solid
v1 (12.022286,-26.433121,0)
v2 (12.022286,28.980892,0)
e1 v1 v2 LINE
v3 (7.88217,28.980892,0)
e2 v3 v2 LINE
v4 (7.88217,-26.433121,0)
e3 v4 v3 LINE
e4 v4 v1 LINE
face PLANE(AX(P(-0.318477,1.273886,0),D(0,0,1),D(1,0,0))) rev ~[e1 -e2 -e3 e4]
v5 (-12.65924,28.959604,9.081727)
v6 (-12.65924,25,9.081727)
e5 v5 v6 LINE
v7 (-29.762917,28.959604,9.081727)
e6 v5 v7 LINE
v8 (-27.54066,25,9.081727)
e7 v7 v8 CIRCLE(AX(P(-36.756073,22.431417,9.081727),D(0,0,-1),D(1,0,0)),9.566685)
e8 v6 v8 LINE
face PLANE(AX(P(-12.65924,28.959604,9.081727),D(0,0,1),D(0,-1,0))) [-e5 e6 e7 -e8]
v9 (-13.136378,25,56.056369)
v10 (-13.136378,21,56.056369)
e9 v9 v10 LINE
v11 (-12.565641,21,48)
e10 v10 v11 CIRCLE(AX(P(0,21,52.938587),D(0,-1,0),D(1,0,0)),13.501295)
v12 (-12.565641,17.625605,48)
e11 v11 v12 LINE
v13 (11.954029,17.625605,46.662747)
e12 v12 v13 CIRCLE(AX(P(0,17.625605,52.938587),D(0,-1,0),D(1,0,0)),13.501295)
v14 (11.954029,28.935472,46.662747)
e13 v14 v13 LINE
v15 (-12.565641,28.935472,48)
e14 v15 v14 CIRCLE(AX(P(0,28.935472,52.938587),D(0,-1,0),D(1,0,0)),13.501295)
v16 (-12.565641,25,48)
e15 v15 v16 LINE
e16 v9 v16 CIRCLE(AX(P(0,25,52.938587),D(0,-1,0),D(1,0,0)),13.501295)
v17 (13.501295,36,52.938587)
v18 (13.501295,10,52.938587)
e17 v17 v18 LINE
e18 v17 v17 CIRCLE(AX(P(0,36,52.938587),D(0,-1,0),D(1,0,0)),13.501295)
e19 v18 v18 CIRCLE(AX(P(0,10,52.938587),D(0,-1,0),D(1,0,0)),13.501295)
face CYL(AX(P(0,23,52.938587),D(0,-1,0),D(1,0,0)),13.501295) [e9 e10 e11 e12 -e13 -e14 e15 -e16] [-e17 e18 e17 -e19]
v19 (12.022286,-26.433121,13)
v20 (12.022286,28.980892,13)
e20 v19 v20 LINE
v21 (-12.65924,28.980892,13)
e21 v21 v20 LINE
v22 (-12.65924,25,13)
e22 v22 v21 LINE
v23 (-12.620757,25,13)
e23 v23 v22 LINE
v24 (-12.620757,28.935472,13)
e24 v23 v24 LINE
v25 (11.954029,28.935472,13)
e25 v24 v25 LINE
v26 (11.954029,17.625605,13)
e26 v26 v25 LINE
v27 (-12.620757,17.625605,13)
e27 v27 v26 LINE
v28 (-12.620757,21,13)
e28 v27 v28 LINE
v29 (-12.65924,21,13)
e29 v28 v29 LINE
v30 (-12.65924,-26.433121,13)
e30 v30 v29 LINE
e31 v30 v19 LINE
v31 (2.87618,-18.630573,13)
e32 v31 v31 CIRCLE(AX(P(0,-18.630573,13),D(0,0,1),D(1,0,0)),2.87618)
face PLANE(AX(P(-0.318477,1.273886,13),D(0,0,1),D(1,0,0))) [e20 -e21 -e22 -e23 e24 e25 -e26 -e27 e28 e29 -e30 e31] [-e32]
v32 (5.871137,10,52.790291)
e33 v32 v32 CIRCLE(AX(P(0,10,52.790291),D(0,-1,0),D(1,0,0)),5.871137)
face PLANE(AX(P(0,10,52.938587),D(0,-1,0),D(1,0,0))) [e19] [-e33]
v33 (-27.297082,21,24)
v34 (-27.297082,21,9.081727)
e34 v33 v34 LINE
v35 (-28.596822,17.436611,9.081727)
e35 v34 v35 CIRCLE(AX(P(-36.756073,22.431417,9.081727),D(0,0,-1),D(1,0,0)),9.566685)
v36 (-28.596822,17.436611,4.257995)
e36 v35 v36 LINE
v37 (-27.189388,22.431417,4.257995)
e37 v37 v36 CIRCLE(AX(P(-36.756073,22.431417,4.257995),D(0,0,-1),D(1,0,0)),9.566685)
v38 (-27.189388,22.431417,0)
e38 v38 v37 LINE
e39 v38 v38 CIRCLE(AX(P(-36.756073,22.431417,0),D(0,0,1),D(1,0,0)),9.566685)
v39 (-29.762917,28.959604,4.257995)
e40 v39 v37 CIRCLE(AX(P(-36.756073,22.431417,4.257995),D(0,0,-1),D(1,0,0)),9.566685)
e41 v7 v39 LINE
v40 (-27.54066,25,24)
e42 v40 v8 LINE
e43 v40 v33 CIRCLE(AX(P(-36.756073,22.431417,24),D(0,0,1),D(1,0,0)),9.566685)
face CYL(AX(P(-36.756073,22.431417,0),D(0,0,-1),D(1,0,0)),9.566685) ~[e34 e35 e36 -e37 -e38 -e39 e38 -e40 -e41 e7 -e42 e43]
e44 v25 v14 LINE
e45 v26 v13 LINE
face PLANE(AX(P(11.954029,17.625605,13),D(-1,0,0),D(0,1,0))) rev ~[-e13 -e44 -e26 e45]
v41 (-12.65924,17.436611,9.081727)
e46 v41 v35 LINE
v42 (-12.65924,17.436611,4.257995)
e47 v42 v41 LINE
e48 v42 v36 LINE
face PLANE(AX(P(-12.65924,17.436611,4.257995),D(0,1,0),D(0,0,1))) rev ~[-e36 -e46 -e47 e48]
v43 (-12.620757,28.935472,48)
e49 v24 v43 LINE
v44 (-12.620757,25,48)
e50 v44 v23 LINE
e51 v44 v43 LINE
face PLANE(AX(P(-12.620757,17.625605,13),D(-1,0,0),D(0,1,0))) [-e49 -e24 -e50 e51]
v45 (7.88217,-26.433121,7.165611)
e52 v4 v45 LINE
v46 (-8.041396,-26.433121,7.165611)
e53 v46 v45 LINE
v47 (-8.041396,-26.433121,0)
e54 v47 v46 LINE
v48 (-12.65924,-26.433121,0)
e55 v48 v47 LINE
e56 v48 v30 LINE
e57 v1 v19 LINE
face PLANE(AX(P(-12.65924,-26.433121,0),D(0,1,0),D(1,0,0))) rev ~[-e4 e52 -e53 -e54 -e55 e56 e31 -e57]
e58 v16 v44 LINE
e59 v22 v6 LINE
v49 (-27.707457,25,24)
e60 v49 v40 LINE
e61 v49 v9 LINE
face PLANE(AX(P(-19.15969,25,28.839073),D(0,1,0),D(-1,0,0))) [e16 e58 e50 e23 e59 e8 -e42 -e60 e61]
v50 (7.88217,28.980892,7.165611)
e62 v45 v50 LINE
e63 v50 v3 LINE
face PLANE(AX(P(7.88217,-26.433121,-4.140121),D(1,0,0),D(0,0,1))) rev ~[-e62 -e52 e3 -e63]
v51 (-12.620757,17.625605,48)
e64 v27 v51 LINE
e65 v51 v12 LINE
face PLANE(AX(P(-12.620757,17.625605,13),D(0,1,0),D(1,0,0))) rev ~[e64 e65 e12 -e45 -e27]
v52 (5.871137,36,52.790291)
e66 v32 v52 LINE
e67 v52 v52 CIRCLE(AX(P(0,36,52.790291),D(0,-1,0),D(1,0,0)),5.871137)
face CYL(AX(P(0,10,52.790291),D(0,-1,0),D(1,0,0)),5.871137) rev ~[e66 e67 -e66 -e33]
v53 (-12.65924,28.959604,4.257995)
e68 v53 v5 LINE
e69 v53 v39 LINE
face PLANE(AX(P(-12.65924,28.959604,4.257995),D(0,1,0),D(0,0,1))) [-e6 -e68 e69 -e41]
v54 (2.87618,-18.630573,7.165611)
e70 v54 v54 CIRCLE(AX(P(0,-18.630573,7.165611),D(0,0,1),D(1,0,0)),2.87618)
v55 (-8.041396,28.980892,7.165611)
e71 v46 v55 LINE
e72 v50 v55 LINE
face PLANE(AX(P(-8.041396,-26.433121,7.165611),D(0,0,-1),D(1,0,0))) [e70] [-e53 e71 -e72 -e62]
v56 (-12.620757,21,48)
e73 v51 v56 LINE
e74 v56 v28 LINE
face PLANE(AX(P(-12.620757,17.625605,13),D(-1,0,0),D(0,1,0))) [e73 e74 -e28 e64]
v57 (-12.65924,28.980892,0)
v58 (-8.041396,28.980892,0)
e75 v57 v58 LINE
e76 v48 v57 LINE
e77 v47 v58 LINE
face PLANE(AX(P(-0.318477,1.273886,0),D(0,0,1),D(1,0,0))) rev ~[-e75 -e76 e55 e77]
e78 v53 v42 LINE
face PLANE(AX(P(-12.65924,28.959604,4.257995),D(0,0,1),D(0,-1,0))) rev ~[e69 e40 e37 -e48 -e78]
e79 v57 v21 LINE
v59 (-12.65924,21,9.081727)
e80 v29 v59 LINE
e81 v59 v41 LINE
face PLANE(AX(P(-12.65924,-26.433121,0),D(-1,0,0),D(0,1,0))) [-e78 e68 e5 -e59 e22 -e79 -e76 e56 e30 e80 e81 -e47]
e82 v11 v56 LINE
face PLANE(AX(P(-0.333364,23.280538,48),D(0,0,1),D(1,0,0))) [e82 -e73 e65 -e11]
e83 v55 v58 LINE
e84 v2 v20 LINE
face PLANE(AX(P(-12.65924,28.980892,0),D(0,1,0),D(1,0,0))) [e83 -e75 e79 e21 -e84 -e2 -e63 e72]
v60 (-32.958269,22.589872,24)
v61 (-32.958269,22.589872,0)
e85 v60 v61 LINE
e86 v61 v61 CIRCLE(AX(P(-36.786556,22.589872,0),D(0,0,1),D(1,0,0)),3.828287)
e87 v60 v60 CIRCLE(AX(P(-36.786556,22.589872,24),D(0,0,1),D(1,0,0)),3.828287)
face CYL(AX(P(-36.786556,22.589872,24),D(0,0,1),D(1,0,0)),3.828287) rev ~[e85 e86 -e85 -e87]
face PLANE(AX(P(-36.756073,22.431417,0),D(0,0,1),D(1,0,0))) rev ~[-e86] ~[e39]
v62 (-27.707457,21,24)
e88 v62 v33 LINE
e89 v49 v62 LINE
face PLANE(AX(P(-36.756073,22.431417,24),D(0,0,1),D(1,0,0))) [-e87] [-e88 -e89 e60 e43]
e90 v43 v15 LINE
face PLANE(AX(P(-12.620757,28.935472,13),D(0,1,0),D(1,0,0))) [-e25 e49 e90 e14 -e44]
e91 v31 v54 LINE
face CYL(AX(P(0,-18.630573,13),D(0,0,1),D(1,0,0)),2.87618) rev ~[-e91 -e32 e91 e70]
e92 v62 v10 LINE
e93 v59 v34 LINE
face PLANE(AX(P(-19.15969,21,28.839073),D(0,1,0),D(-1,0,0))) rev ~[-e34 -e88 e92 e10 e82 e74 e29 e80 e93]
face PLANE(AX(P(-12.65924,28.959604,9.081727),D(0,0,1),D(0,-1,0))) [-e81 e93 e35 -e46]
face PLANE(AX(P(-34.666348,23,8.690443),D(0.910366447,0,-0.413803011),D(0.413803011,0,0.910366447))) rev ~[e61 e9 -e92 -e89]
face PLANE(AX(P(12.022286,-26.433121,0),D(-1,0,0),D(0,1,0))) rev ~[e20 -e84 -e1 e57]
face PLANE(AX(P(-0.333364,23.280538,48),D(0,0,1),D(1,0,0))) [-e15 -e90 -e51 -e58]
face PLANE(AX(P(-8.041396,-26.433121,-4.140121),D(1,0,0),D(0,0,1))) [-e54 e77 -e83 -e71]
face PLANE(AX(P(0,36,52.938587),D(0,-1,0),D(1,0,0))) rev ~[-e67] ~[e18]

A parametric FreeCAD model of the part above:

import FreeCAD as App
import Part
import Sketcher
from FreeCAD import Vector
Q = App.Units.Quantity

doc = App.newDocument("Part")
body = doc.addObject("PartDesign::Body", "Body")

# Sketch on XY plane
sketch1 = body.newObject("Sketcher::SketchObject", "Sketch")
sketch1.AttachmentSupport = (doc.getObject("XY_Plane"), [""])
sketch1.MapMode = "FlatFace"
sketch1.addGeometry([
    Part.LineSegment(Vector(-13, 29, 0), Vector(-13, -26, 0)),
    Part.LineSegment(Vector(-13, -26, 0), Vector(12, -26, 0)),
    Part.LineSegment(Vector(12, -26, 0), Vector(12, 29, 0)),
    Part.LineSegment(Vector(12, 29, 0), Vector(-13, 29, 0)),
], False)
sketch1.addConstraint([
    Sketcher.Constraint("Coincident", 0, 2, 1, 1),
    Sketcher.Constraint("Coincident", 1, 2, 2, 1),
    Sketcher.Constraint("Coincident", 2, 2, 3, 1),
    Sketcher.Constraint("Coincident", 3, 2, 0, 1),
    Sketcher.Constraint("Vertical", 0),
    Sketcher.Constraint("Horizontal", 1),
    Sketcher.Constraint("Vertical", 2),
    Sketcher.Constraint("Horizontal", 3),
    Sketcher.Constraint("DistanceX", 1, 1, 1, 2, Q("24.681526 mm")),
    Sketcher.Constraint("DistanceY", 0, 2, 0, 1, Q("55.414013 mm")),
    Sketcher.Constraint("DistanceX", 0, 2, -1, 1, Q("12.65924 mm")),
    Sketcher.Constraint("DistanceY", 0, 2, -1, 1, Q("26.433121 mm")),
])
pad1 = body.newObject("PartDesign::Pad", "Pad")
pad1.Profile = sketch1
pad1.Length = 13

# Sketch on XZ plane
sketch2 = body.newObject("Sketcher::SketchObject", "Sketch001")
sketch2.AttachmentSupport = (doc.getObject("XZ_Plane"), [""])
sketch2.MapMode = "FlatFace"
sketch2.AttachmentOffset = App.Placement(Vector(0, 0, 26.433121), App.Rotation())
sketch2.addGeometry([
    Part.LineSegment(Vector(-8, 7, 0), Vector(-8, -4, 0)),
    Part.LineSegment(Vector(-8, -4, 0), Vector(8, -4, 0)),
    Part.LineSegment(Vector(8, -4, 0), Vector(8, 7, 0)),
    Part.LineSegment(Vector(8, 7, 0), Vector(-8, 7, 0)),
], False)
sketch2.addConstraint([
    Sketcher.Constraint("Coincident", 0, 2, 1, 1),
    Sketcher.Constraint("Coincident", 1, 2, 2, 1),
    Sketcher.Constraint("Coincident", 2, 2, 3, 1),
    Sketcher.Constraint("Coincident", 3, 2, 0, 1),
    Sketcher.Constraint("Vertical", 0),
    Sketcher.Constraint("Horizontal", 1),
    Sketcher.Constraint("Vertical", 2),
    Sketcher.Constraint("Horizontal", 3),
    Sketcher.Constraint("DistanceY", 0, 2, 0, 1, Q("11.305732 mm")),
    Sketcher.Constraint("DistanceX", 1, 1, 1, 2, Q("15.923566 mm")),
    Sketcher.Constraint("DistanceY", 0, 2, -1, 1, Q("4.140121 mm")),
    Sketcher.Constraint("DistanceX", -1, 1, 1, 2, Q("7.88217 mm")),
])
pocket1 = body.newObject("PartDesign::Pocket", "Pocket")
pocket1.Profile = sketch2
pocket1.Type = "ThroughAll"

# Sketch on XY plane
sketch3 = body.newObject("Sketcher::SketchObject", "Sketch002")
sketch3.AttachmentSupport = (doc.getObject("XY_Plane"), [""])
sketch3.MapMode = "FlatFace"
sketch3.AttachmentOffset = App.Placement(Vector(0, 0, 13), App.Rotation())
sketch3.addGeometry(Part.Circle(Vector(0, -18.6, 0), Vector(0, 0, 1), 2.9), False)
sketch3.addConstraint([
    Sketcher.Constraint("PointOnObject", 0, 3, -2),
    Sketcher.Constraint("Diameter", 0, Q("5.75236 mm")),
    Sketcher.Constraint("DistanceY", 0, 3, -1, 1, Q("18.630573 mm")),
])
pocket2 = body.newObject("PartDesign::Pocket", "Pocket001")
pocket2.Profile = sketch3
pocket2.Type = "ThroughAll"

# Sketch on XY plane
sketch4 = body.newObject("Sketcher::SketchObject", "Sketch003")
sketch4.AttachmentSupport = (doc.getObject("XY_Plane"), [""])
sketch4.MapMode = "FlatFace"
sketch4.AttachmentOffset = App.Placement(Vector(0, 0, 13), App.Rotation())
sketch4.addGeometry([
    Part.LineSegment(Vector(-13, 29, 0), Vector(-13, 18, 0)),
    Part.LineSegment(Vector(-13, 18, 0), Vector(12, 18, 0)),
    Part.LineSegment(Vector(12, 18, 0), Vector(12, 29, 0)),
    Part.LineSegment(Vector(12, 29, 0), Vector(-13, 29, 0)),
], False)
sketch4.addConstraint([
    Sketcher.Constraint("Coincident", 0, 2, 1, 1),
    Sketcher.Constraint("Coincident", 1, 2, 2, 1),
    Sketcher.Constraint("Coincident", 2, 2, 3, 1),
    Sketcher.Constraint("Coincident", 3, 2, 0, 1),
    Sketcher.Constraint("Vertical", 0),
    Sketcher.Constraint("Horizontal", 1),
    Sketcher.Constraint("Vertical", 2),
    Sketcher.Constraint("Horizontal", 3),
    Sketcher.Constraint("DistanceX", 1, 1, 1, 2, Q("24.574786 mm")),
    Sketcher.Constraint("DistanceY", 0, 2, 0, 1, Q("11.309867 mm")),
    Sketcher.Constraint("DistanceX", -1, 1, 1, 2, Q("11.954029 mm")),
    Sketcher.Constraint("DistanceY", -1, 1, 0, 2, Q("17.625605 mm")),
])
pad2 = body.newObject("PartDesign::Pad", "Pad001")
pad2.Profile = sketch4
pad2.Length = 35

# Sketch on YZ plane
sketch5 = body.newObject("Sketcher::SketchObject", "Sketch004")
sketch5.AttachmentSupport = (doc.getObject("YZ_Plane"), [""])
sketch5.MapMode = "FlatFace"
sketch5.AttachmentOffset = App.Placement(Vector(0, 0, -12.65924), App.Rotation())
sketch5.addGeometry([
    Part.LineSegment(Vector(29, 9.1, 0), Vector(29, 4.3, 0)),
    Part.LineSegment(Vector(29, 4.3, 0), Vector(17.4, 4.3, 0)),
    Part.LineSegment(Vector(17.4, 4.3, 0), Vector(17.4, 9.1, 0)),
    Part.LineSegment(Vector(17.4, 9.1, 0), Vector(29, 9.1, 0)),
], False)
sketch5.addConstraint([
    Sketcher.Constraint("Coincident", 0, 2, 1, 1),
    Sketcher.Constraint("Coincident", 1, 2, 2, 1),
    Sketcher.Constraint("Coincident", 2, 2, 3, 1),
    Sketcher.Constraint("Coincident", 3, 2, 0, 1),
    Sketcher.Constraint("Vertical", 0),
    Sketcher.Constraint("Horizontal", 1),
    Sketcher.Constraint("Vertical", 2),
    Sketcher.Constraint("Horizontal", 3),
    Sketcher.Constraint("DistanceX", 1, 2, 1, 1, Q("11.522993 mm")),
    Sketcher.Constraint("DistanceY", 0, 2, 0, 1, Q("4.823732 mm")),
    Sketcher.Constraint("DistanceX", -1, 1, 1, 2, Q("17.436611 mm")),
    Sketcher.Constraint("DistanceY", -1, 1, 0, 2, Q("4.257995 mm")),
])
pad3 = body.newObject("PartDesign::Pad", "Pad002")
pad3.Profile = sketch5
pad3.Length = 22
pad3.Reversed = True

# Sketch on XZ plane
sketch6 = body.newObject("Sketcher::SketchObject", "Sketch005")
sketch6.AttachmentSupport = (doc.getObject("XZ_Plane"), [""])
sketch6.MapMode = "FlatFace"
sketch6.AttachmentOffset = App.Placement(Vector(0, 0, -23), App.Rotation())
sketch6.addGeometry([
    Part.LineSegment(Vector(-12, 58, 0), Vector(-35, 9, 0)),
    Part.LineSegment(Vector(-35, 9, 0), Vector(-12, 9, 0)),
    Part.LineSegment(Vector(-12, 9, 0), Vector(-12, 58, 0)),
], False)
sketch6.addConstraint([
    Sketcher.Constraint("Coincident", 0, 2, 1, 1),
    Sketcher.Constraint("Coincident", 1, 2, 2, 1),
    Sketcher.Constraint("Coincident", 2, 2, 0, 1),
    Sketcher.Constraint("Horizontal", 1),
    Sketcher.Constraint("Vertical", 2),
    Sketcher.Constraint("Distance", 0, Q("53.853059 mm")),
    Sketcher.Constraint("DistanceX", 1, 1, 1, 2, Q("22.284558 mm")),
    Sketcher.Constraint("DistanceX", 1, 2, -1, 1, Q("12.38179 mm")),
    Sketcher.Constraint("DistanceY", -1, 1, 2, 2, Q("57.716461 mm")),
])
pad4 = body.newObject("PartDesign::Pad", "Pad003")
pad4.Profile = sketch6
pad4.Length = 4
pad4.Midplane = True

# Sketch on XY plane
sketch7 = body.newObject("Sketcher::SketchObject", "Sketch006")
sketch7.AttachmentSupport = (doc.getObject("XY_Plane"), [""])
sketch7.MapMode = "FlatFace"
sketch7.addGeometry(Part.Circle(Vector(-37, 22, 0), Vector(0, 0, 1), 10), False)
sketch7.addConstraint([
    Sketcher.Constraint("Diameter", 0, Q("19.13337 mm")),
    Sketcher.Constraint("DistanceX", 0, 3, -1, 1, Q("36.756073 mm")),
    Sketcher.Constraint("DistanceY", -1, 1, 0, 3, Q("22.431417 mm")),
])
pad5 = body.newObject("PartDesign::Pad", "Pad004")
pad5.Profile = sketch7
pad5.Length = 24

# Sketch on XY plane
sketch8 = body.newObject("Sketcher::SketchObject", "Sketch007")
sketch8.AttachmentSupport = (doc.getObject("XY_Plane"), [""])
sketch8.MapMode = "FlatFace"
sketch8.AttachmentOffset = App.Placement(Vector(0, 0, 24), App.Rotation())
sketch8.addGeometry(Part.Circle(Vector(-36.8, 22.6, 0), Vector(0, 0, 1), 3.8), False)
sketch8.addConstraint([
    Sketcher.Constraint("Diameter", 0, Q("7.656574 mm")),
    Sketcher.Constraint("DistanceY", -1, 1, 0, 3, Q("22.589872 mm")),
    Sketcher.Constraint("DistanceX", 0, 3, -1, 1, Q("36.786556 mm")),
])
pocket3 = body.newObject("PartDesign::Pocket", "Pocket002")
pocket3.Profile = sketch8
pocket3.Type = "ThroughAll"

# Sketch on XZ plane
sketch9 = body.newObject("Sketcher::SketchObject", "Sketch008")
sketch9.AttachmentSupport = (doc.getObject("XZ_Plane"), [""])
sketch9.MapMode = "FlatFace"
sketch9.AttachmentOffset = App.Placement(Vector(0, 0, -23), App.Rotation())
sketch9.addGeometry(Part.Circle(Vector(0, 53, 0), Vector(0, 0, 1), 14), False)
sketch9.addConstraint([
    Sketcher.Constraint("PointOnObject", 0, 3, -2),
    Sketcher.Constraint("Diameter", 0, Q("27.002591 mm")),
    Sketcher.Constraint("DistanceY", -1, 1, 0, 3, Q("52.938587 mm")),
])
pad6 = body.newObject("PartDesign::Pad", "Pad005")
pad6.Profile = sketch9
pad6.Length = 26
pad6.Midplane = True

# Sketch on XZ plane
sketch10 = body.newObject("Sketcher::SketchObject", "Sketch009")
sketch10.AttachmentSupport = (doc.getObject("XZ_Plane"), [""])
sketch10.MapMode = "FlatFace"
sketch10.AttachmentOffset = App.Placement(Vector(0, 0, -10), App.Rotation())
sketch10.addGeometry(Part.Circle(Vector(0, 53, 0), Vector(0, 0, 1), 6), False)
sketch10.addConstraint([
    Sketcher.Constraint("PointOnObject", 0, 3, -2),
    Sketcher.Constraint("Diameter", 0, Q("11.742274 mm")),
    Sketcher.Constraint("DistanceY", -1, 1, 0, 3, Q("52.790291 mm")),
])
pocket4 = body.newObject("PartDesign::Pocket", "Pocket003")
pocket4.Profile = sketch10
pocket4.Type = "ThroughAll"

doc.recompute()
